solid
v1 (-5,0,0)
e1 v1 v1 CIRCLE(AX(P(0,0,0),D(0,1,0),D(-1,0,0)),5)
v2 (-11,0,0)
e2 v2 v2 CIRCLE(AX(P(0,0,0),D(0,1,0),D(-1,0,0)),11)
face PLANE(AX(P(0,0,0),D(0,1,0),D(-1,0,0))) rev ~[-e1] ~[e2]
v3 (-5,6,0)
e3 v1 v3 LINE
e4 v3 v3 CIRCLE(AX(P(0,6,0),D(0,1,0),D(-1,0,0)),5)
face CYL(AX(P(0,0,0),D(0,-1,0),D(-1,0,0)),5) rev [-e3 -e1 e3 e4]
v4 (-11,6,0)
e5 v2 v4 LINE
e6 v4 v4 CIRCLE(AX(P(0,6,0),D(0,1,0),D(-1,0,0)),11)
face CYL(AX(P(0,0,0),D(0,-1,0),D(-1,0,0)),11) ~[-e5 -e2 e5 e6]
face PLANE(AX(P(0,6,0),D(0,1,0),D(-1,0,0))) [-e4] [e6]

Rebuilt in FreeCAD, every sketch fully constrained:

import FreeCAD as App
import Part
import Sketcher
from FreeCAD import Vector
Q = App.Units.Quantity

doc = App.newDocument("Part")
params = doc.addObject("Spreadsheet::Sheet", "Params")
for row, (alias, value) in enumerate([
    ("sketch1_diameter", "22 mm"),
    ("sketch1_diameter2", "10 mm"),
    ("pad1_length", "6 mm"),
], start=1):
    params.set(f"A{row}", alias)
    params.set(f"B{row}", "=" + value)
    params.setAlias(f"B{row}", alias)

body = doc.addObject("PartDesign::Body", "Body")

sketch1 = body.newObject("Sketcher::SketchObject", "Sketch")
sketch1.AttachmentSupport = (doc.getObject("XZ_Plane"), [""])
sketch1.MapMode = "FlatFace"
sketch1.addGeometry([
    Part.Circle(Vector(0, 0, 0), Vector(0, 0, 1), 11),
    Part.Circle(Vector(0, 0, 0), Vector(0, 0, 1), 5),
], False)
sketch1.addConstraint([
    Sketcher.Constraint("Coincident", 0, 3, -1, 1),
    Sketcher.Constraint("Coincident", 1, 3, -1, 1),
    Sketcher.Constraint("Diameter", 0, Q("22 mm")),
    Sketcher.Constraint("Diameter", 1, Q("10 mm")),
])
sketch1.setExpression("Constraints[2]", "Params.sketch1_diameter")
sketch1.setExpression("Constraints[3]", "Params.sketch1_diameter2")
pad1 = body.newObject("PartDesign::Pad", "Pad")
pad1.Profile = sketch1
pad1.setExpression("Length", "Params.pad1_length")
pad1.Reversed = True

doc.recompute()
